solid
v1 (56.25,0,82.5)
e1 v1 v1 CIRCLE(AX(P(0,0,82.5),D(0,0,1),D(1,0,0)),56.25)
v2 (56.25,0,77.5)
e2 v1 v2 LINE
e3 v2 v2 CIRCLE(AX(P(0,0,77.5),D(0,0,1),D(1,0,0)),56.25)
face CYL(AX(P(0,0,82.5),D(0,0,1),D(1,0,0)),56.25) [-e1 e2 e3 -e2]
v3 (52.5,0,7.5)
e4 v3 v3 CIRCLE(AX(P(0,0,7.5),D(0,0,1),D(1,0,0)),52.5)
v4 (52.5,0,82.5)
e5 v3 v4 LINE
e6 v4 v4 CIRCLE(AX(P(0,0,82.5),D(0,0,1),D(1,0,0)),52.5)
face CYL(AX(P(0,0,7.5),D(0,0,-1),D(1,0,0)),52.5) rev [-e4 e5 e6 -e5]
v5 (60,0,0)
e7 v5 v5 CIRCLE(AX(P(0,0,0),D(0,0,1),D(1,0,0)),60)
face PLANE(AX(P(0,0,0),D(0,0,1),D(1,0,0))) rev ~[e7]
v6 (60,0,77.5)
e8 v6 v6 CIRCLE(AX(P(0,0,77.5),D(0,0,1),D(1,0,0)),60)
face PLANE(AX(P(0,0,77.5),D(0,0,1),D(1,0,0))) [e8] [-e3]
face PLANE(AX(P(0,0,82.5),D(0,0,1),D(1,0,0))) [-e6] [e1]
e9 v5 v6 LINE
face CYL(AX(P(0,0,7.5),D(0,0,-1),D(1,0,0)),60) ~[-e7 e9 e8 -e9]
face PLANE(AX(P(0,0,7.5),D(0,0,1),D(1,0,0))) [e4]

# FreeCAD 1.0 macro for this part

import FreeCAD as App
import Part
import Sketcher
Q = App.Units.Quantity

doc = App.newDocument("Part")
body = doc.addObject("PartDesign::Body", "Body")

# Sketch on XY plane
sketch1 = body.newObject("Sketcher::SketchObject", "Sketch")
sketch1.AttachmentSupport = (doc.getObject("XY_Plane"), [""])
sketch1.MapMode = "FlatFace"
sketch1.addGeometry(Part.Circle(App.Vector(0, 0, 0), App.Vector(0, 0, 1), 60), False)
sketch1.addConstraint([
    Sketcher.Constraint("Coincident", 0, 3, -1, 1),
    Sketcher.Constraint("Diameter", 0, Q("120 mm")),
])
pad1 = body.newObject("PartDesign::Pad", "Pad")
pad1.Profile = sketch1
pad1.Length = 7.5

# Sketch on XY plane
sketch2 = body.newObject("Sketcher::SketchObject", "Sketch001")
sketch2.AttachmentSupport = (doc.getObject("XY_Plane"), [""])
sketch2.MapMode = "FlatFace"
sketch2.AttachmentOffset = App.Placement(App.Vector(0, 0, 7.5), App.Rotation())
sketch2.addGeometry([
    Part.Circle(App.Vector(0, 0, 0), App.Vector(0, 0, 1), 60),
    Part.Circle(App.Vector(0, 0, 0), App.Vector(0, 0, 1), 52),
], False)
sketch2.addConstraint([
    Sketcher.Constraint("Coincident", 0, 3, -1, 1),
    Sketcher.Constraint("Coincident", 1, 3, -1, 1),
    Sketcher.Constraint("Diameter", 0, Q("120 mm")),
    Sketcher.Constraint("Diameter", 1, Q("105 mm")),
])
pad2 = body.newObject("PartDesign::Pad", "Pad001")
pad2.Profile = sketch2
pad2.Length = 75

# Sketch on XY plane
sketch3 = body.newObject("Sketcher::SketchObject", "Sketch002")
sketch3.AttachmentSupport = (doc.getObject("XY_Plane"), [""])
sketch3.MapMode = "FlatFace"
sketch3.AttachmentOffset = App.Placement(App.Vector(0, 0, 82.5), App.Rotation())
sketch3.addGeometry([
    Part.Circle(App.Vector(0, 0, 0), App.Vector(0, 0, 1), 60),
    Part.Circle(App.Vector(0, 0, 0), App.Vector(0, 0, 1), 56),
], False)
sketch3.addConstraint([
    Sketcher.Constraint("Coincident", 0, 3, -1, 1),
    Sketcher.Constraint("Coincident", 1, 3, -1, 1),
    Sketcher.Constraint("Diameter", 0, Q("120 mm")),
    Sketcher.Constraint("Diameter", 1, Q("112.5 mm")),
])
pocket1 = body.newObject("PartDesign::Pocket", "Pocket")
pocket1.Profile = sketch3
pocket1.Length = 5

doc.recompute()
